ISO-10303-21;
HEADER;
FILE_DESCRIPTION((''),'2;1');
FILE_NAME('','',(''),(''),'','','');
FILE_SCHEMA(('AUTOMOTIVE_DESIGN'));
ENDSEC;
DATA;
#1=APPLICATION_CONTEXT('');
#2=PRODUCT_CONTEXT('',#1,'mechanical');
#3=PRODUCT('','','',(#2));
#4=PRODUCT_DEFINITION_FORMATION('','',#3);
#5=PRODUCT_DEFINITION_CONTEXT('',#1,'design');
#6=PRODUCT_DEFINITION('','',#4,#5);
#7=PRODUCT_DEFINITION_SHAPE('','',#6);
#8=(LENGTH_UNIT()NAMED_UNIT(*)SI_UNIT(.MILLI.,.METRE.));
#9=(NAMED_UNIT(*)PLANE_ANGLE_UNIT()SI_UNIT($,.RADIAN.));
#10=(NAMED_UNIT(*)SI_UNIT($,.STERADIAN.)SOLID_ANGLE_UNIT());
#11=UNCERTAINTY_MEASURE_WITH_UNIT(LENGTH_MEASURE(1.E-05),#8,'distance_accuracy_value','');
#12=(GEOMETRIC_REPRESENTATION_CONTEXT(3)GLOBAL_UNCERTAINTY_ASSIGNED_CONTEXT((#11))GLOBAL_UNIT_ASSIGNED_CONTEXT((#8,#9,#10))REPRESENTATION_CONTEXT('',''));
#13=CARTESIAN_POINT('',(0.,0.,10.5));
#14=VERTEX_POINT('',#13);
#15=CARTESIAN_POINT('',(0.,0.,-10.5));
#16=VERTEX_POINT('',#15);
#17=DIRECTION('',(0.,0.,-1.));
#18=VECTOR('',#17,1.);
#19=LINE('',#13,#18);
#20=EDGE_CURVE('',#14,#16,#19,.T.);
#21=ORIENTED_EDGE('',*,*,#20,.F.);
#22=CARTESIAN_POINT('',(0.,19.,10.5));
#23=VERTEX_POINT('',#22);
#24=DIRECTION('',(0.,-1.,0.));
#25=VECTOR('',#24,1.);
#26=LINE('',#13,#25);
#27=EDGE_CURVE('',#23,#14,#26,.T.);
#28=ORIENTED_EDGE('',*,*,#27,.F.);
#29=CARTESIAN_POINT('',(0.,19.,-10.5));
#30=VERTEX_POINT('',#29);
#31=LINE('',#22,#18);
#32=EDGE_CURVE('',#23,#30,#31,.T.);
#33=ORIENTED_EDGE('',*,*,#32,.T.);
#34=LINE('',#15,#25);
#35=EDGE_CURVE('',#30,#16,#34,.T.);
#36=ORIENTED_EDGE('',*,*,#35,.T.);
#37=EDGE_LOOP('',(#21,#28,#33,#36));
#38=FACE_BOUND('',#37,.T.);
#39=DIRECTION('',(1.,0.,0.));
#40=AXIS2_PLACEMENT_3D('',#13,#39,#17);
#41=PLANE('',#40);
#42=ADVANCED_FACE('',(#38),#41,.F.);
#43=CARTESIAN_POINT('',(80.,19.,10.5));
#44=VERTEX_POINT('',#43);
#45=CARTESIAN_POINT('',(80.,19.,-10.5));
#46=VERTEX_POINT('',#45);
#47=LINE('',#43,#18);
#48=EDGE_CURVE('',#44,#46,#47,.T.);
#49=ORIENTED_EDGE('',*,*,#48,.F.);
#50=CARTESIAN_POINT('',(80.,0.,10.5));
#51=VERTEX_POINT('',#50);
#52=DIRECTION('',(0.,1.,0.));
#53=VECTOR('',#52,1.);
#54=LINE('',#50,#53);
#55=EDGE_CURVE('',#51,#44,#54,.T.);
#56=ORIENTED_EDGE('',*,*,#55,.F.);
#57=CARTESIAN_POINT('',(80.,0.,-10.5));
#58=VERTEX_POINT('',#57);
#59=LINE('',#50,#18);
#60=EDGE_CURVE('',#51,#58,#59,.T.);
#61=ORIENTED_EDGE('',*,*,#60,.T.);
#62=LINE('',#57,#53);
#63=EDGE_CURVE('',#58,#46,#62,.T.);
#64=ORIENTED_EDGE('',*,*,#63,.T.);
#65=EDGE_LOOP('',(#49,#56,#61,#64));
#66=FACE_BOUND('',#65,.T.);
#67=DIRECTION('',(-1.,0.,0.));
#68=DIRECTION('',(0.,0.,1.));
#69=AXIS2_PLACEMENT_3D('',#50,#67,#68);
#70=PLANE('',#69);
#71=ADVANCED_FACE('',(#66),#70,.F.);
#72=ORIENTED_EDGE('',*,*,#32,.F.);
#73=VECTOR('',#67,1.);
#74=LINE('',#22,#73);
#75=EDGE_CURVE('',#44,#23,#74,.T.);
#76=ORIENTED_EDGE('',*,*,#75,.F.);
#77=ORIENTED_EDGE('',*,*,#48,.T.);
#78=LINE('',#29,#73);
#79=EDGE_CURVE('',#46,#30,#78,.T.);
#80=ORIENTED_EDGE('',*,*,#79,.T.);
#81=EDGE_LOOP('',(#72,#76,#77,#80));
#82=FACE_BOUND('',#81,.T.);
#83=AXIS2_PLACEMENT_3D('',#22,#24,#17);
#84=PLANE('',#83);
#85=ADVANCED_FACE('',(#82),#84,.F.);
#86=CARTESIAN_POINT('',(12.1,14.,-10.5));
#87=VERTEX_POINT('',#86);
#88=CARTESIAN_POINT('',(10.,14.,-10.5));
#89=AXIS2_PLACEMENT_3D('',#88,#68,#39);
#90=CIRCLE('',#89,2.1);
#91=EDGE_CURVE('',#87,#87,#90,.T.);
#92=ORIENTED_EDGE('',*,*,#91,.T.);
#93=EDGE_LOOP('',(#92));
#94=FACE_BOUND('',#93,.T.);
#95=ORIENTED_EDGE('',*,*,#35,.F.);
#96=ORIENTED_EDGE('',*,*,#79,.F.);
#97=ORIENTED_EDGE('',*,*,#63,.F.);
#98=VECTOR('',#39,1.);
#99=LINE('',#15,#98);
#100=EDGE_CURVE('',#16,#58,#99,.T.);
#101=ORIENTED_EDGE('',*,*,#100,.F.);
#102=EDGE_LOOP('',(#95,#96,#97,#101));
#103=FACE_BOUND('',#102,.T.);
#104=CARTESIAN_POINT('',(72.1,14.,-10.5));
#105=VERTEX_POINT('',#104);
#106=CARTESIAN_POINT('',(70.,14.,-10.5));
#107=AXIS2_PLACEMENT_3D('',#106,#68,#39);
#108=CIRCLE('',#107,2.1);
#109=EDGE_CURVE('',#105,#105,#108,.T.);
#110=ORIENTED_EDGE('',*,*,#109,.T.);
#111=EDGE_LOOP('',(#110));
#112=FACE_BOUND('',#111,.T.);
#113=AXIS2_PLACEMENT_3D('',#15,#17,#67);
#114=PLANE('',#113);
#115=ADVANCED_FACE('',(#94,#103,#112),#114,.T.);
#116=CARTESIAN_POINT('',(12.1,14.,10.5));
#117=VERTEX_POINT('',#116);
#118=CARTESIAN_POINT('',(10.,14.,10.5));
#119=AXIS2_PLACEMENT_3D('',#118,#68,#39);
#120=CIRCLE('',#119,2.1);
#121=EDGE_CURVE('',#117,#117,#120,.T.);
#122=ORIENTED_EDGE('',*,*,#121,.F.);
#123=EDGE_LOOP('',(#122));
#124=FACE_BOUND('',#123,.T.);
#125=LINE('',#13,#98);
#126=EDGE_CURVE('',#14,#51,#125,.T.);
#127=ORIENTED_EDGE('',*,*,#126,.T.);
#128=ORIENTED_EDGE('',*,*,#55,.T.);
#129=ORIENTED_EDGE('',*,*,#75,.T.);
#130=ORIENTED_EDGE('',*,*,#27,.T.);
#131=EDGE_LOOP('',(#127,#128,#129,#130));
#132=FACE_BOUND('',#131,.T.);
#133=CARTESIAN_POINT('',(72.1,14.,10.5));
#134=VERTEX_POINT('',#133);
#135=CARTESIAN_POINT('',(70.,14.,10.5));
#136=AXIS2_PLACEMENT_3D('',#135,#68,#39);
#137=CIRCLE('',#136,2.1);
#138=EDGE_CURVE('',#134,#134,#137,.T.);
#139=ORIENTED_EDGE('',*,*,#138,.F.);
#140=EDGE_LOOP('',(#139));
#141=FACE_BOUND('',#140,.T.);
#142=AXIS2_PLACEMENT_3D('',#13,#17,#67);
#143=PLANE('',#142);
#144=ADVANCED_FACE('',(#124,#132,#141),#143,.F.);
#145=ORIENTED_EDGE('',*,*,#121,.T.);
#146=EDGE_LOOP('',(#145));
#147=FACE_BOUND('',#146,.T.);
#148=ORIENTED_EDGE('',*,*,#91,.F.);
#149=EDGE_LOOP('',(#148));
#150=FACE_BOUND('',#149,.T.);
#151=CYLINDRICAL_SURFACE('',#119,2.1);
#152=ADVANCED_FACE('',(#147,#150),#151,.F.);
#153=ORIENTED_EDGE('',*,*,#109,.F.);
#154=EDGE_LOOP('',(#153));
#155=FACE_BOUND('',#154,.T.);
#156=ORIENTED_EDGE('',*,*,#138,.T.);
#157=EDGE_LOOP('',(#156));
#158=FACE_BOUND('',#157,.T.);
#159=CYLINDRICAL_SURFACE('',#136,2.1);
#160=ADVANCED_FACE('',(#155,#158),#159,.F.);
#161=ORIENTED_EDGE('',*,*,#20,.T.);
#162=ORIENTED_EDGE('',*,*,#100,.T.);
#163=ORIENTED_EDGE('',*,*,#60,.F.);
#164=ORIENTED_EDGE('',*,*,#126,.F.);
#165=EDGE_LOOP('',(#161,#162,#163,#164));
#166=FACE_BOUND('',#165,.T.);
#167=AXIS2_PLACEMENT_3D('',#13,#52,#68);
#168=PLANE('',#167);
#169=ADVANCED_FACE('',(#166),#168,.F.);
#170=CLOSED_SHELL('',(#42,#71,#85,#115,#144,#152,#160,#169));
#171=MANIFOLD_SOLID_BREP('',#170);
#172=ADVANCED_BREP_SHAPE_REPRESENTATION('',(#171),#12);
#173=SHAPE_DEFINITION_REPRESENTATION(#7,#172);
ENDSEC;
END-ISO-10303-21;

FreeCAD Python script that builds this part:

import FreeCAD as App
import Part
import Sketcher
from FreeCAD import Vector


def add_polygon(sketch, points):
    """Adds a closed chain of lines whose ends are joined by coincident constraints."""
    first, n = sketch.GeometryCount, len(points)
    for a, b in zip(points, points[1:] + points[:1]):
        sketch.addGeometry(Part.LineSegment(App.Vector(*a, 0), App.Vector(*b, 0)), False)
    for i in range(n):
        sketch.addConstraint(Sketcher.Constraint("Coincident", first + i, 2, first + (i + 1) % n, 1))

doc = App.newDocument("Part")
body = doc.addObject("PartDesign::Body", "Body")

sketch1 = body.newObject("Sketcher::SketchObject", "Sketch")
sketch1.AttachmentSupport = (doc.getObject("XY_Plane"), [""])
sketch1.MapMode = "FlatFace"
add_polygon(sketch1, [(0, 19), (0, 0), (80, 0), (80, 19)])
sketch1.addConstraint([
    Sketcher.Constraint("Vertical", 0),
    Sketcher.Constraint("Horizontal", 1),
    Sketcher.Constraint("Vertical", 2),
    Sketcher.Constraint("Horizontal", 3),
    Sketcher.Constraint("Coincident", 0, 2, -1, 1),
    Sketcher.Constraint("DistanceX", 1, 1, 1, 2, 80.0),
    Sketcher.Constraint("DistanceY", 0, 2, 0, 1, 19.0),
])
pad1 = body.newObject("PartDesign::Pad", "Pad")
pad1.Profile = sketch1
pad1.Length = 21
pad1.Midplane = True

sketch2 = body.newObject("Sketcher::SketchObject", "Sketch001")
sketch2.AttachmentSupport = (doc.getObject("XY_Plane"), [""])
sketch2.MapMode = "FlatFace"
sketch2.AttachmentOffset = App.Placement(Vector(0, 0, 10.5), App.Rotation())
sketch2.addGeometry([
    Part.Circle(Vector(10, 14, 0), Vector(0, 0, 1), 2.1),
    Part.Circle(Vector(70, 14, 0), Vector(0, 0, 1), 2.1),
], False)
sketch2.addConstraint([
    Sketcher.Constraint("Equal", 0, 1),
    Sketcher.Constraint("Horizontal", 0, 3, 1, 3),
    Sketcher.Constraint("Diameter", 0, 4.2),
    Sketcher.Constraint("DistanceX", -1, 1, 0, 3, 10.0),
    Sketcher.Constraint("DistanceY", -1, 1, 0, 3, 14.0),
    Sketcher.Constraint("DistanceX", -1, 1, 1, 3, 70.0),
])
doc.recompute()
hole = body.newObject("PartDesign::Hole", "Hole")
hole.Profile = sketch2
hole.ThreadType = "None"
hole.Diameter = 4.2
hole.DepthType = "ThroughAll"

doc.recompute()
